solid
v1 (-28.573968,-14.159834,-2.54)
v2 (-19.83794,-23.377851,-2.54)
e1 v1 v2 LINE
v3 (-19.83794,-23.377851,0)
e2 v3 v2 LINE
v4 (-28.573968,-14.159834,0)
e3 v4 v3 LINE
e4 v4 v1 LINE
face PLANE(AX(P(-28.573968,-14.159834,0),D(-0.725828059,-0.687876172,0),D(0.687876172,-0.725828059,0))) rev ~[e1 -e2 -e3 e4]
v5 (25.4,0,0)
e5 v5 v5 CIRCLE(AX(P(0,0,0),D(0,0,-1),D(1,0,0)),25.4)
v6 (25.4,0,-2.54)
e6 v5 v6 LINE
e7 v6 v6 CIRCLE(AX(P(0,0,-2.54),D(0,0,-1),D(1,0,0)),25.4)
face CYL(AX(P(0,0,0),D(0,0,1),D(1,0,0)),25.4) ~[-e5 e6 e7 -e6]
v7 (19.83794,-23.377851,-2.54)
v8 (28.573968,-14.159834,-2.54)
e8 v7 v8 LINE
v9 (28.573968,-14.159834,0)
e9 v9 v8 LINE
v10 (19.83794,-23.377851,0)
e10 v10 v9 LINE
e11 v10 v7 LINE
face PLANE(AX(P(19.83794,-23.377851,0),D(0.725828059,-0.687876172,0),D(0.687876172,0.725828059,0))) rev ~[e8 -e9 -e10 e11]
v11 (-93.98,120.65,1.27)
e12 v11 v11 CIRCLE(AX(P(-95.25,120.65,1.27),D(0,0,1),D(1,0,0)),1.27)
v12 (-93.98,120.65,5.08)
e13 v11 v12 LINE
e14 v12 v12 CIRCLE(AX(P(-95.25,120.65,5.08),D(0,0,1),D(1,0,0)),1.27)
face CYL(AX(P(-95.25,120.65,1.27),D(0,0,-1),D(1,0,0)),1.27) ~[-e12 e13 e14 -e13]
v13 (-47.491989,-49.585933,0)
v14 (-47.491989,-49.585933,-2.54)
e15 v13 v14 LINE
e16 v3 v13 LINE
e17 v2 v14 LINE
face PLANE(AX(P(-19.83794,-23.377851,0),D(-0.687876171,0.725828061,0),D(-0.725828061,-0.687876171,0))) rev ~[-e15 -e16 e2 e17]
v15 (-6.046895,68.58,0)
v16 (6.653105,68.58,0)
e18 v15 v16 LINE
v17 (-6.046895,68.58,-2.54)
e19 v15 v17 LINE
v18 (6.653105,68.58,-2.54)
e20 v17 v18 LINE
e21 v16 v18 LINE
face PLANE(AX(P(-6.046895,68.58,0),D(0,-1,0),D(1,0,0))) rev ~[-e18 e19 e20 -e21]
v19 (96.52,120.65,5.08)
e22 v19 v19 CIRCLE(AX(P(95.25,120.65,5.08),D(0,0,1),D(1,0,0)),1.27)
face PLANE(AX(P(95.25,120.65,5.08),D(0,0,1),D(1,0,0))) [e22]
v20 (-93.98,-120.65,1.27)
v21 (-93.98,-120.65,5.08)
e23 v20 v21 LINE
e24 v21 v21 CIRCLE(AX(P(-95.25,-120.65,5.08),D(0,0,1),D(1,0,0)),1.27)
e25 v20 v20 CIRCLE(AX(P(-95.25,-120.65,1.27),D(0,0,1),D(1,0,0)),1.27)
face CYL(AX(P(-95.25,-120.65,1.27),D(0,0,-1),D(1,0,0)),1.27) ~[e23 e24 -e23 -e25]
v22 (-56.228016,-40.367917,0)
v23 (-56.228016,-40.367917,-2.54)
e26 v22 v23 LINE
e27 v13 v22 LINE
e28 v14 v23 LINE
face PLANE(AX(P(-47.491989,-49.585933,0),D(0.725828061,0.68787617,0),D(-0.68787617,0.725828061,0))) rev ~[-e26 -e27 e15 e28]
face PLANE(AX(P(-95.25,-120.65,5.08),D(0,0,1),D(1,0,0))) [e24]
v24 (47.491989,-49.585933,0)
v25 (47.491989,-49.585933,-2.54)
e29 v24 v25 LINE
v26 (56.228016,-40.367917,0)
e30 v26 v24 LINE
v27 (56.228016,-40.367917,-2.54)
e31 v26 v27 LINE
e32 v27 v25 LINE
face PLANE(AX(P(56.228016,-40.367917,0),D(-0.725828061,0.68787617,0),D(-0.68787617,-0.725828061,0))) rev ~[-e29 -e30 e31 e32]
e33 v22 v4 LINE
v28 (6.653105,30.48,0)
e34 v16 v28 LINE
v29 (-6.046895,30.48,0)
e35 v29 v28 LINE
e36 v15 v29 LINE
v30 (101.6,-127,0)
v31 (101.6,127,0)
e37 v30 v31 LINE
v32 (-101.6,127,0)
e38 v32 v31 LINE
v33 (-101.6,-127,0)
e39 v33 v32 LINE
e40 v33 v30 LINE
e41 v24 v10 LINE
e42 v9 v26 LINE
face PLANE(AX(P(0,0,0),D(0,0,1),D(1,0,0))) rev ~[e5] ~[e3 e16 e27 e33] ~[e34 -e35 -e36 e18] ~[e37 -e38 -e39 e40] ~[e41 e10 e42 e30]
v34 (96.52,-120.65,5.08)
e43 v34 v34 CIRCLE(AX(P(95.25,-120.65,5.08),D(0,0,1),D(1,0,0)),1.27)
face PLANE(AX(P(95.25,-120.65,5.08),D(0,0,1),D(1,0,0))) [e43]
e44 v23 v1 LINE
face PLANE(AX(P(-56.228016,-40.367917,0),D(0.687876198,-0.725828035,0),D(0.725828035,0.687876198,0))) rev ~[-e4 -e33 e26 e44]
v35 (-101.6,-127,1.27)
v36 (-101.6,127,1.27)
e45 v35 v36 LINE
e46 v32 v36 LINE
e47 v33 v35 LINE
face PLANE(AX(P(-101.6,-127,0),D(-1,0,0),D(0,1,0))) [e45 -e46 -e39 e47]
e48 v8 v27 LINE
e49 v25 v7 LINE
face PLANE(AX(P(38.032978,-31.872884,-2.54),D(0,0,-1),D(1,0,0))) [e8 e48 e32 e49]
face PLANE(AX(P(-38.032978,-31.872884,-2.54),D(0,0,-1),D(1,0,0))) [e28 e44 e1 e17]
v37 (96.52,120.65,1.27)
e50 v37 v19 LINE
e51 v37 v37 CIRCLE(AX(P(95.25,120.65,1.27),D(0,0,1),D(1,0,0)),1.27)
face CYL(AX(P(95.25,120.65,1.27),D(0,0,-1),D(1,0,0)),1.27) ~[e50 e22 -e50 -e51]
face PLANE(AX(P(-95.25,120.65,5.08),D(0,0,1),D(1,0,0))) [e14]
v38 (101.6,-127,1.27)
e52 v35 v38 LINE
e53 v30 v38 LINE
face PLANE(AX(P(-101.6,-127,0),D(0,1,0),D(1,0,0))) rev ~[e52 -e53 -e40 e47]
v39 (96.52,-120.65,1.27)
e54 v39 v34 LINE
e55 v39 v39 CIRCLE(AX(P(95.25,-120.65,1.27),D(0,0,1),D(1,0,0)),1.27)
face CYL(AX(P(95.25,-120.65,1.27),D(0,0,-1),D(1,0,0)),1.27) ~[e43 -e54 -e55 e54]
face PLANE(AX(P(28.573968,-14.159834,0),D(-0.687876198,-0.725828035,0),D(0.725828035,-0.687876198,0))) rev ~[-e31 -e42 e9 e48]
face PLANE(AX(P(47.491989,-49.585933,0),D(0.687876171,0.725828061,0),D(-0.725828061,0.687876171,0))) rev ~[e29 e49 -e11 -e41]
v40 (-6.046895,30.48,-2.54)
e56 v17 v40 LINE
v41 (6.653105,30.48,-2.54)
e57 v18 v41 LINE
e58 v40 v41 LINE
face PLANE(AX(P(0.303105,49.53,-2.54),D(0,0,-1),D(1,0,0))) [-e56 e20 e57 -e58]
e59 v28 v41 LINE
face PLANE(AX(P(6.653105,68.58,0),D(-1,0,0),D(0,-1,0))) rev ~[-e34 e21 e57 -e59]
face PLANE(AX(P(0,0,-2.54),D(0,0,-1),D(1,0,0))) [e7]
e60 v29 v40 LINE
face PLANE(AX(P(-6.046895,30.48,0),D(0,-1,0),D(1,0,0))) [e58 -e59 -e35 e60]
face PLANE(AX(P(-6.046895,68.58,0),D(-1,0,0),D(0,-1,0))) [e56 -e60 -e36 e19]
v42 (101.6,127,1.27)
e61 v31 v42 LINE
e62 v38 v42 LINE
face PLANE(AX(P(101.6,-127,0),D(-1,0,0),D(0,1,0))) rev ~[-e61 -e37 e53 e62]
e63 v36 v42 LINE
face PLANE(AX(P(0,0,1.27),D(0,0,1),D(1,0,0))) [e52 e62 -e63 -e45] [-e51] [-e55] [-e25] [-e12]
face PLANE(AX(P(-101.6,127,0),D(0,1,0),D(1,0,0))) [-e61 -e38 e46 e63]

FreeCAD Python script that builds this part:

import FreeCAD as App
import Part
import Sketcher
Q = App.Units.Quantity

doc = App.newDocument("Part")
body = doc.addObject("PartDesign::Body", "Body")

# Sketch on XY plane
sketch1 = body.newObject("Sketcher::SketchObject", "Sketch")
sketch1.AttachmentSupport = (doc.getObject("XY_Plane"), [""])
sketch1.MapMode = "FlatFace"
sketch1.addGeometry([
    Part.LineSegment(App.Vector(-101.6, 127, 0), App.Vector(-101.6, -127, 0)),
    Part.LineSegment(App.Vector(-101.6, -127, 0), App.Vector(101.6, -127, 0)),
    Part.LineSegment(App.Vector(101.6, -127, 0), App.Vector(101.6, 127, 0)),
    Part.LineSegment(App.Vector(101.6, 127, 0), App.Vector(-101.6, 127, 0)),
], False)
sketch1.addConstraint([
    Sketcher.Constraint("Coincident", 0, 2, 1, 1),
    Sketcher.Constraint("Coincident", 1, 2, 2, 1),
    Sketcher.Constraint("Coincident", 2, 2, 3, 1),
    Sketcher.Constraint("Coincident", 3, 2, 0, 1),
    Sketcher.Constraint("Vertical", 0),
    Sketcher.Constraint("Horizontal", 1),
    Sketcher.Constraint("Vertical", 2),
    Sketcher.Constraint("Horizontal", 3),
    Sketcher.Constraint("Symmetric", 0, 2, 2, 2, -1, 1),
    Sketcher.Constraint("DistanceX", 1, 1, 1, 2, Q("8 in")),
    Sketcher.Constraint("DistanceY", 0, 2, 0, 1, Q("10 in")),
])
pad1 = body.newObject("PartDesign::Pad", "Pad")
pad1.Profile = sketch1
pad1.Length = Q("0.05 in")

# Sketch on XY plane
sketch2 = body.newObject("Sketcher::SketchObject", "Sketch001")
sketch2.AttachmentSupport = (doc.getObject("XY_Plane"), [""])
sketch2.MapMode = "FlatFace"
sketch2.AttachmentOffset = App.Placement(App.Vector(0, 0, 0.05 * 25.4), App.Rotation())
sketch2.addGeometry([
    Part.Circle(App.Vector(-95.25, 120.65, 0), App.Vector(0, 0, 1), 1.27),
    Part.Circle(App.Vector(95.25, 120.65, 0), App.Vector(0, 0, 1), 1.27),
    Part.Circle(App.Vector(95.25, -120.65, 0), App.Vector(0, 0, 1), 1.27),
    Part.Circle(App.Vector(-95.25, -120.65, 0), App.Vector(0, 0, 1), 1.27),
], False)
sketch2.addConstraint([
    Sketcher.Constraint("Equal", 0, 1),
    Sketcher.Constraint("Equal", 1, 2),
    Sketcher.Constraint("Equal", 2, 3),
    Sketcher.Constraint("Symmetric", 0, 3, 2, 3, -1, 1),
    Sketcher.Constraint("Symmetric", 1, 3, 3, 3, -1, 1),
    Sketcher.Constraint("Symmetric", 0, 3, 1, 3, -2),
    Sketcher.Constraint("Diameter", 0, Q("0.1 in")),
    Sketcher.Constraint("DistanceX", 0, 3, 1, 3, Q("7.5 in")),
    Sketcher.Constraint("DistanceY", 2, 3, 1, 3, Q("9.5 in")),
])
pad2 = body.newObject("PartDesign::Pad", "Pad001")
pad2.Profile = sketch2
pad2.Length = Q("0.15 in")

# Sketch on XY plane
sketch3 = body.newObject("Sketcher::SketchObject", "Sketch002")
sketch3.AttachmentSupport = (doc.getObject("XY_Plane"), [""])
sketch3.MapMode = "FlatFace"
sketch3.addGeometry([
    Part.LineSegment(App.Vector(-56.228016, -40.367917, 0), App.Vector(-28.573968, -14.159834, 0)),  # 0
    Part.LineSegment(App.Vector(-28.573968, -14.159834, 0), App.Vector(-19.83794, -23.377851, 0)),  # 1
    Part.LineSegment(App.Vector(-19.83794, -23.377851, 0), App.Vector(-47.491989, -49.585933, 0)),  # 2
    Part.LineSegment(App.Vector(-47.491989, -49.585933, 0), App.Vector(-56.228016, -40.367917, 0)),  # 3
    Part.Circle(App.Vector(0, 0, 0), App.Vector(0, 0, 1), 25.4),  # 4
    Part.LineSegment(App.Vector(56.228016, -40.367917, 0), App.Vector(47.491989, -49.585933, 0)),  # 5
    Part.LineSegment(App.Vector(47.491989, -49.585933, 0), App.Vector(19.83794, -23.377851, 0)),  # 6
    Part.LineSegment(App.Vector(19.83794, -23.377851, 0), App.Vector(28.573968, -14.159834, 0)),  # 7
    Part.LineSegment(App.Vector(28.573968, -14.159834, 0), App.Vector(56.228016, -40.367917, 0)),  # 8
    Part.LineSegment(App.Vector(-6.046895, 30.48, 0), App.Vector(-6.046895, 68.58, 0)),  # 9
    Part.LineSegment(App.Vector(-6.046895, 68.58, 0), App.Vector(6.653105, 68.58, 0)),  # 10
    Part.LineSegment(App.Vector(6.653105, 68.58, 0), App.Vector(6.653105, 30.48, 0)),  # 11
    Part.LineSegment(App.Vector(6.653105, 30.48, 0), App.Vector(-6.046895, 30.48, 0)),  # 12
], False)
sketch3.addConstraint([
    Sketcher.Constraint("Coincident", 0, 2, 1, 1),
    Sketcher.Constraint("Coincident", 1, 2, 2, 1),
    Sketcher.Constraint("Coincident", 2, 2, 3, 1),
    Sketcher.Constraint("Coincident", 3, 2, 0, 1),
    Sketcher.Constraint("Coincident", 5, 2, 6, 1),
    Sketcher.Constraint("Coincident", 6, 2, 7, 1),
    Sketcher.Constraint("Coincident", 7, 2, 8, 1),
    Sketcher.Constraint("Coincident", 8, 2, 5, 1),
    Sketcher.Constraint("Coincident", 9, 2, 10, 1),
    Sketcher.Constraint("Coincident", 10, 2, 11, 1),
    Sketcher.Constraint("Coincident", 11, 2, 12, 1),
    Sketcher.Constraint("Coincident", 12, 2, 9, 1),
    Sketcher.Constraint("Vertical", 9),
    Sketcher.Constraint("Horizontal", 10),
    Sketcher.Constraint("Vertical", 11),
    Sketcher.Constraint("Horizontal", 12),
    Sketcher.Constraint("Coincident", 4, 3, -1, 1),
    Sketcher.Constraint("Symmetric", 2, 2, 5, 2, -2),
    Sketcher.Constraint("Symmetric", 1, 2, 6, 2, -2),
    Sketcher.Constraint("Symmetric", 0, 2, 7, 2, -2),
    Sketcher.Constraint("Symmetric", 3, 2, 8, 2, -2),
    Sketcher.Constraint("Perpendicular", 0, 1),
    Sketcher.Constraint("Perpendicular", 1, 2),
    Sketcher.Constraint("Perpendicular", 2, 3),
    Sketcher.Constraint("Diameter", 4, Q("2 in")),
    Sketcher.Constraint("DistanceX", 10, 1, 10, 2, Q("0.5 in")),
    Sketcher.Constraint("DistanceY", 9, 1, 9, 2, Q("1.5 in")),
    Sketcher.Constraint("Distance", 0, Q("1.5 in")),
    Sketcher.Constraint("Distance", 1, Q("0.5 in")),
    Sketcher.Constraint("DistanceY", -1, 1, 9, 2, Q("2.7 in")),
    Sketcher.Constraint("DistanceY", 2, 2, 0, 2, Q("35.426099 mm")),
    Sketcher.Constraint("DistanceX", 0, 2, -1, 1, Q("28.573968 mm")),
    Sketcher.Constraint("DistanceY", 1, 2, -1, 1, Q("23.377851 mm")),
    Sketcher.Constraint("DistanceX", 9, 2, -1, 1, Q("6.046895 mm")),
])
pad3 = body.newObject("PartDesign::Pad", "Pad002")
pad3.Profile = sketch3
pad3.Length = Q("0.1 in")
pad3.Reversed = True

doc.recompute()
